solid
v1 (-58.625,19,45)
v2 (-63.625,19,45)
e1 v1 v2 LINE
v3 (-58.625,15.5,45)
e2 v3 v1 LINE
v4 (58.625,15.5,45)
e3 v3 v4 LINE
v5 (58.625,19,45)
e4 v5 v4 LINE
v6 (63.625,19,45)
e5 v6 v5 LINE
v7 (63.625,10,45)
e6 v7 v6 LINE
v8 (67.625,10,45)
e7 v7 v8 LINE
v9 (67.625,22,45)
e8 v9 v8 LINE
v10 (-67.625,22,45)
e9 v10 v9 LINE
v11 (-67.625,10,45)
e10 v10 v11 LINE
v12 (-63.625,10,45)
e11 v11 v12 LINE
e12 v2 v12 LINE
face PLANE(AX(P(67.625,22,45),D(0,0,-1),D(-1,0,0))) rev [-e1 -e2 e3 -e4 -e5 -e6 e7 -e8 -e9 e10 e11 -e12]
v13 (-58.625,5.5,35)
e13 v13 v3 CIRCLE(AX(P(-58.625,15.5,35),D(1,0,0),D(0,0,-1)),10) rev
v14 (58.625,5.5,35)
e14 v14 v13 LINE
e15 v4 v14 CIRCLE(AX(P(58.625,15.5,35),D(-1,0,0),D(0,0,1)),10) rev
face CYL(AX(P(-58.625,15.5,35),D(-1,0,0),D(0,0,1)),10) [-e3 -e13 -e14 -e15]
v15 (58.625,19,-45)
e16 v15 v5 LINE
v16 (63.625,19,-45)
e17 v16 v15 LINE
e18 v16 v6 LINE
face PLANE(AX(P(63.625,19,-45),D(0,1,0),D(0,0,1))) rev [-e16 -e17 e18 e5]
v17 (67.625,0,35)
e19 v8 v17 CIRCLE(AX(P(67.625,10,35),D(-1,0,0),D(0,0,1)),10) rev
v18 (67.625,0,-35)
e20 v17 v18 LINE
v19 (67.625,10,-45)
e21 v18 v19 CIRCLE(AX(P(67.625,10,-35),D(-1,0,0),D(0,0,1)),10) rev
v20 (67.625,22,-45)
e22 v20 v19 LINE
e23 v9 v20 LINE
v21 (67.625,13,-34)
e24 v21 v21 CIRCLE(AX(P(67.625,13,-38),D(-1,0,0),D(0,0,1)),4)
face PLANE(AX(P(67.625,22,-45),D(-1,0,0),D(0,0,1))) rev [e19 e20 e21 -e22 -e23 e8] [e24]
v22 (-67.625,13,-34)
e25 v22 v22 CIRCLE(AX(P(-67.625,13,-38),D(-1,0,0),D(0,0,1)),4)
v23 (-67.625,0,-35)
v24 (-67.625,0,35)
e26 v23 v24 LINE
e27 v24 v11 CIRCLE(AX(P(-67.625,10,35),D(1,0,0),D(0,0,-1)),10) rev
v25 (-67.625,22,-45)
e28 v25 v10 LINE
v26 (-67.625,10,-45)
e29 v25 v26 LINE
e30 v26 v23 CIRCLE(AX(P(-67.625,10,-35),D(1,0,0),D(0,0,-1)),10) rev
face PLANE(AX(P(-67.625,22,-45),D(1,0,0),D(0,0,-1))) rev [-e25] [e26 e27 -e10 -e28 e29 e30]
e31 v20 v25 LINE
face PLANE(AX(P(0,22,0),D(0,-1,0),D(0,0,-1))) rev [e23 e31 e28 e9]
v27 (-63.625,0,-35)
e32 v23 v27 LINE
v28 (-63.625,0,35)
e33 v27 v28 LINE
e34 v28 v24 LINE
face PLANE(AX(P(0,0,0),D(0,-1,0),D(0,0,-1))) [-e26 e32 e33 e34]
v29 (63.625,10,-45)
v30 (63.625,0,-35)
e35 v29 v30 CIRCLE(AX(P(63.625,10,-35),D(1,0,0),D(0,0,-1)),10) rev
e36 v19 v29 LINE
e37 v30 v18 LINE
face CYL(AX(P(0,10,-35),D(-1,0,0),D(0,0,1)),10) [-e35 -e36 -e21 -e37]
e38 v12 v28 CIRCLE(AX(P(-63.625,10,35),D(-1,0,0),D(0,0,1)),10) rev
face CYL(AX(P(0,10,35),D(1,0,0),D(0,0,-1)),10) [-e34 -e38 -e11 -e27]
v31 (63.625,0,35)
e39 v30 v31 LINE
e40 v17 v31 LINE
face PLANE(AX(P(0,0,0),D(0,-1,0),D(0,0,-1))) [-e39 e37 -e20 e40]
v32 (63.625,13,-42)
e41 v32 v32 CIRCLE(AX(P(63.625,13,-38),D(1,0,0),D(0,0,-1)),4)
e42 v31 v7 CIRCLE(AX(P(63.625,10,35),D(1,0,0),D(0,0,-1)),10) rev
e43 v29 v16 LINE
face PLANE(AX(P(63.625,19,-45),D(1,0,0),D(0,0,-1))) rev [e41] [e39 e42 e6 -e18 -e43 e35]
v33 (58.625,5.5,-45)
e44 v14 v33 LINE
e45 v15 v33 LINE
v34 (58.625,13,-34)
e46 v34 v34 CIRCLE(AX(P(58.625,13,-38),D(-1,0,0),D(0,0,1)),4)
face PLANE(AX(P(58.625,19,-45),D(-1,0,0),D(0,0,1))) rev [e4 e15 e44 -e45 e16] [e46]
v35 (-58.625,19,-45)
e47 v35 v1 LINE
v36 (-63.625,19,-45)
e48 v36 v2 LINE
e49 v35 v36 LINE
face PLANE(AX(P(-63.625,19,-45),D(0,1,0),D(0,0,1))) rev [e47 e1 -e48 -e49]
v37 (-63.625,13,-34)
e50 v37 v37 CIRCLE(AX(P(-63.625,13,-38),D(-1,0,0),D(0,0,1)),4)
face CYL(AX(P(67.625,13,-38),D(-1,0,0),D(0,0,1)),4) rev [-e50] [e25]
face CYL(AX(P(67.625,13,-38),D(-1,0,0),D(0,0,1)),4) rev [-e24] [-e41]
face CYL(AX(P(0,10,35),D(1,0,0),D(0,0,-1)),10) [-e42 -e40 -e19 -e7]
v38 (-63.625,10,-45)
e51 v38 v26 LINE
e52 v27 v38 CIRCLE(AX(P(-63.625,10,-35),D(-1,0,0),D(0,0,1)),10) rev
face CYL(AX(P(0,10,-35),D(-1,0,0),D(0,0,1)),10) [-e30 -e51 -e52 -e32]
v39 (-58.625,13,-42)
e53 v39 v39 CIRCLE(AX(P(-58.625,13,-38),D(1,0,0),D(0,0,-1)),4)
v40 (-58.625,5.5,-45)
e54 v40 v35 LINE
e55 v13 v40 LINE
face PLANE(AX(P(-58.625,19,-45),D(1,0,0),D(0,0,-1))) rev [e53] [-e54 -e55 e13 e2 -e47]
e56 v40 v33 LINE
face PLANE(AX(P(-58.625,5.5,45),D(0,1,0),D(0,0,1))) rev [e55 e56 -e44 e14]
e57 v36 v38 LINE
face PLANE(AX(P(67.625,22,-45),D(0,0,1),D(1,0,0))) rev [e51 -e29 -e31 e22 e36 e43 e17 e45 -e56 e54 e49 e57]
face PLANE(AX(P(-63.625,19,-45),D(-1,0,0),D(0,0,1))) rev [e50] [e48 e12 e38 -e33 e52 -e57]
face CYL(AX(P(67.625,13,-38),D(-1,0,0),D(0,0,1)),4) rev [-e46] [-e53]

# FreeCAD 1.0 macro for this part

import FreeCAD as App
import Part
import Sketcher

V = App.Vector


def edges_at(feature, points):
    """Names of the edges that pass closest to the given points."""
    edges = feature.Shape.Edges
    near = lambda p: min(range(len(edges)), key=lambda i: edges[i].distToShape(Part.Vertex(*p))[0])
    return sorted({f"Edge{near(p) + 1}" for p in points})

doc = App.newDocument("Part")
body = doc.addObject("PartDesign::Body", "Body")

# Sketch on XZ plane
sketch1 = doc.addObject("Sketcher::SketchObject", "Sketch")
body.addObject(sketch1)
sketch1.AttachmentSupport = (doc.XZ_Plane, [""])
sketch1.MapMode = "FlatFace"
sketch1.addGeometry(Part.LineSegment(V(-68, -45, 0), V(-68, 45, 0)), False)
sketch1.addGeometry(Part.LineSegment(V(-68, 45, 0), V(68, 45, 0)), False)
sketch1.addGeometry(Part.LineSegment(V(68, 45, 0), V(68, -45, 0)), False)
sketch1.addGeometry(Part.LineSegment(V(68, -45, 0), V(-68, -45, 0)), False)
sketch1.addConstraint(Sketcher.Constraint("Coincident", 0, 2, 1, 1))
sketch1.addConstraint(Sketcher.Constraint("Coincident", 1, 2, 2, 1))
sketch1.addConstraint(Sketcher.Constraint("Coincident", 2, 2, 3, 1))
sketch1.addConstraint(Sketcher.Constraint("Coincident", 3, 2, 0, 1))
sketch1.addConstraint(Sketcher.Constraint("Vertical", 0))
sketch1.addConstraint(Sketcher.Constraint("Horizontal", 1))
sketch1.addConstraint(Sketcher.Constraint("Vertical", 2))
sketch1.addConstraint(Sketcher.Constraint("Horizontal", 3))
sketch1.addConstraint(Sketcher.Constraint("Symmetric", 0, 2, 2, 2, -1, 1))
sketch1.addConstraint(Sketcher.Constraint("DistanceY", 0, 1, 0, 2, 90.0))
sketch1.addConstraint(Sketcher.Constraint("DistanceX", 1, 1, 1, 2, 135.25))
pad1 = doc.addObject("PartDesign::Pad", "Pad")
body.addObject(pad1)
pad1.Profile = sketch1
pad1.Length = 22
pad1.Reversed = True

# Sketch on XY plane
sketch2 = doc.addObject("Sketcher::SketchObject", "Sketch001")
body.addObject(sketch2)
sketch2.AttachmentSupport = (doc.XY_Plane, [""])
sketch2.MapMode = "FlatFace"
sketch2.AttachmentOffset = App.Placement(V(0, 0, 45), App.Rotation())
sketch2.addGeometry(Part.LineSegment(V(-64, 19, 0), V(-64, 0, 0)), False)
sketch2.addGeometry(Part.LineSegment(V(-64, 0, 0), V(-59, 0, 0)), False)
sketch2.addGeometry(Part.LineSegment(V(-59, 0, 0), V(-59, 19, 0)), False)
sketch2.addGeometry(Part.LineSegment(V(-59, 19, 0), V(-64, 19, 0)), False)
sketch2.addGeometry(Part.LineSegment(V(59, 19, 0), V(59, 0, 0)), False)
sketch2.addGeometry(Part.LineSegment(V(59, 0, 0), V(64, 0, 0)), False)
sketch2.addGeometry(Part.LineSegment(V(64, 0, 0), V(64, 19, 0)), False)
sketch2.addGeometry(Part.LineSegment(V(64, 19, 0), V(59, 19, 0)), False)
sketch2.addConstraint(Sketcher.Constraint("Coincident", 0, 2, 1, 1))
sketch2.addConstraint(Sketcher.Constraint("Coincident", 1, 2, 2, 1))
sketch2.addConstraint(Sketcher.Constraint("Coincident", 2, 2, 3, 1))
sketch2.addConstraint(Sketcher.Constraint("Coincident", 3, 2, 0, 1))
sketch2.addConstraint(Sketcher.Constraint("Coincident", 4, 2, 5, 1))
sketch2.addConstraint(Sketcher.Constraint("Coincident", 5, 2, 6, 1))
sketch2.addConstraint(Sketcher.Constraint("Coincident", 6, 2, 7, 1))
sketch2.addConstraint(Sketcher.Constraint("Coincident", 7, 2, 4, 1))
sketch2.addConstraint(Sketcher.Constraint("Vertical", 0))
sketch2.addConstraint(Sketcher.Constraint("Horizontal", 1))
sketch2.addConstraint(Sketcher.Constraint("Vertical", 2))
sketch2.addConstraint(Sketcher.Constraint("Horizontal", 3))
sketch2.addConstraint(Sketcher.Constraint("Vertical", 4))
sketch2.addConstraint(Sketcher.Constraint("Horizontal", 5))
sketch2.addConstraint(Sketcher.Constraint("Vertical", 6))
sketch2.addConstraint(Sketcher.Constraint("Horizontal", 7))
sketch2.addConstraint(Sketcher.Constraint("Symmetric", 1, 2, 4, 2, -1, 1))
sketch2.addConstraint(Sketcher.Constraint("Symmetric", 0, 2, 5, 2, -2))
sketch2.addConstraint(Sketcher.Constraint("Horizontal", 3, 2, 6, 2))
sketch2.addConstraint(Sketcher.Constraint("DistanceX", 1, 1, 1, 2, 5.0))
sketch2.addConstraint(Sketcher.Constraint("DistanceY", 0, 2, 0, 1, 19.0))
sketch2.addConstraint(Sketcher.Constraint("DistanceX", 1, 2, 4, 2, 117.25))
pocket1 = doc.addObject("PartDesign::Pocket", "Pocket")
body.addObject(pocket1)
pocket1.Profile = sketch2
pocket1.Type = "ThroughAll"

# Sketch on XY plane
sketch3 = doc.addObject("Sketcher::SketchObject", "Sketch002")
body.addObject(sketch3)
sketch3.AttachmentSupport = (doc.XY_Plane, [""])
sketch3.MapMode = "FlatFace"
sketch3.AttachmentOffset = App.Placement(V(0, 0, -45), App.Rotation())
sketch3.addGeometry(Part.LineSegment(V(59, 6, 0), V(59, -6, 0)), False)
sketch3.addGeometry(Part.LineSegment(V(59, -6, 0), V(-59, -6, 0)), False)
sketch3.addGeometry(Part.LineSegment(V(-59, -6, 0), V(-59, 6, 0)), False)
sketch3.addGeometry(Part.LineSegment(V(-59, 6, 0), V(59, 6, 0)), False)
sketch3.addConstraint(Sketcher.Constraint("Coincident", 0, 2, 1, 1))
sketch3.addConstraint(Sketcher.Constraint("Coincident", 1, 2, 2, 1))
sketch3.addConstraint(Sketcher.Constraint("Coincident", 2, 2, 3, 1))
sketch3.addConstraint(Sketcher.Constraint("Coincident", 3, 2, 0, 1))
sketch3.addConstraint(Sketcher.Constraint("Vertical", 0))
sketch3.addConstraint(Sketcher.Constraint("Horizontal", 1))
sketch3.addConstraint(Sketcher.Constraint("Vertical", 2))
sketch3.addConstraint(Sketcher.Constraint("Horizontal", 3))
sketch3.addConstraint(Sketcher.Constraint("Symmetric", 0, 2, 2, 2, -1, 1))
sketch3.addConstraint(Sketcher.Constraint("DistanceY", 0, 2, 0, 1, 11.0))
sketch3.addConstraint(Sketcher.Constraint("DistanceX", 1, 2, 1, 1, 117.25))
pocket2 = doc.addObject("PartDesign::Pocket", "Pocket001")
body.addObject(pocket2)
pocket2.Profile = sketch3
pocket2.Type = "ThroughAll"
pocket2.Reversed = True
doc.recompute()

fillet = doc.addObject("PartDesign::Fillet", "Fillet")
body.addObject(fillet)
fillet.Base = (pocket2, edges_at(pocket2, [(0, 5.5, 45)]))
fillet.Radius = 10
doc.recompute()

fillet2 = doc.addObject("PartDesign::Fillet", "Fillet001")
body.addObject(fillet2)
fillet2.Base = (fillet, edges_at(fillet, [(-65.625, 0, 45)]))
fillet2.Radius = 10
doc.recompute()

fillet3 = doc.addObject("PartDesign::Fillet", "Fillet002")
body.addObject(fillet3)
fillet3.Base = (fillet2, edges_at(fillet2, [(65.625, 0, 45)]))
fillet3.Radius = 10
doc.recompute()

fillet4 = doc.addObject("PartDesign::Fillet", "Fillet003")
body.addObject(fillet4)
fillet4.Base = (fillet3, edges_at(fillet3, [(-65.625, 0, -45)]))
fillet4.Radius = 10
doc.recompute()

fillet5 = doc.addObject("PartDesign::Fillet", "Fillet004")
body.addObject(fillet5)
fillet5.Base = (fillet4, edges_at(fillet4, [(65.625, 0, -45)]))
fillet5.Radius = 10

# Sketch on YZ plane
sketch4 = doc.addObject("Sketcher::SketchObject", "Sketch003")
body.addObject(sketch4)
sketch4.AttachmentSupport = (doc.YZ_Plane, [""])
sketch4.MapMode = "FlatFace"
sketch4.AttachmentOffset = App.Placement(V(0, 0, -67.625), App.Rotation())
sketch4.addGeometry(Part.Circle(V(13, -38, 0), V(0, 0, 1), 4), False)
sketch4.addConstraint(Sketcher.Constraint("Diameter", 0, 8.0))
sketch4.addConstraint(Sketcher.Constraint("DistanceX", -1, 1, 0, 3, 13.0))
sketch4.addConstraint(Sketcher.Constraint("DistanceY", 0, 3, -1, 1, 38.0))
pocket3 = doc.addObject("PartDesign::Pocket", "Pocket002")
body.addObject(pocket3)
pocket3.Profile = sketch4
pocket3.Type = "ThroughAll"
pocket3.Reversed = True

doc.recompute()
